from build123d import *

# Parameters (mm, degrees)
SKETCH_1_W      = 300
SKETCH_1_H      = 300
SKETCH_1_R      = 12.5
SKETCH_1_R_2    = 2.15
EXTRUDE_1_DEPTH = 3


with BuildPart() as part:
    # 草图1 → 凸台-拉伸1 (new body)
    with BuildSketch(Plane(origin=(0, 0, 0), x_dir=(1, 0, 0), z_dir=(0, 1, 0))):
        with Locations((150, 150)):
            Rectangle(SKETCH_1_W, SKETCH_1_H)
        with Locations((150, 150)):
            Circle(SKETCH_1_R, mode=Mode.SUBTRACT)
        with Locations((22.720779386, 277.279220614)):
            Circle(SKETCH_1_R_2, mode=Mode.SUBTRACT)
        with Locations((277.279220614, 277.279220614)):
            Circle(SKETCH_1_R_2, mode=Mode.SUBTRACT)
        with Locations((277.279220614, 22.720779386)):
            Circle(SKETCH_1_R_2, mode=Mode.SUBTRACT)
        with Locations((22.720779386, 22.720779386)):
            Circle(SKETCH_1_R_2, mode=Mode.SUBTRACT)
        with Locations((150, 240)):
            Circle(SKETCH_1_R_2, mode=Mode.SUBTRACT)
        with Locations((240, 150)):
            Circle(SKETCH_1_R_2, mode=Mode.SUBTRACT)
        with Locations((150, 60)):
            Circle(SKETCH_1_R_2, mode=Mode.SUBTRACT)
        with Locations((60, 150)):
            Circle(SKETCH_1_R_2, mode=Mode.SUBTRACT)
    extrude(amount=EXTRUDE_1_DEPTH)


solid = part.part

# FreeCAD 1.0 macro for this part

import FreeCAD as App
import Part
import Sketcher

V = App.Vector
Q = App.Units.Quantity


def add_polygon(sketch, points):
    """Adds a closed chain of lines whose ends are joined by coincident constraints."""
    first, n = sketch.GeometryCount, len(points)
    for a, b in zip(points, points[1:] + points[:1]):
        sketch.addGeometry(Part.LineSegment(App.Vector(*a, 0), App.Vector(*b, 0)), False)
    for i in range(n):
        sketch.addConstraint(Sketcher.Constraint("Coincident", first + i, 2, first + (i + 1) % n, 1))

doc = App.newDocument("Part")
body = doc.addObject("PartDesign::Body", "Body")

sketch1 = doc.addObject("Sketcher::SketchObject", "Sketch")
body.addObject(sketch1)
sketch1.AttachmentSupport = (doc.XZ_Plane, [""])
sketch1.MapMode = "FlatFace"
add_polygon(sketch1, [(0, -300), (0, 0), (300, 0), (300, -300)])
sketch1.addGeometry(Part.Circle(V(22.7, -22.7, 0), V(0, 0, 1), 2.1), False)
sketch1.addGeometry(Part.Circle(V(150, -60, 0), V(0, 0, 1), 2.1), False)
sketch1.addGeometry(Part.Circle(V(277.3, -22.7, 0), V(0, 0, 1), 2.1), False)
sketch1.addGeometry(Part.Circle(V(60, -150, 0), V(0, 0, 1), 2.1), False)
sketch1.addGeometry(Part.Circle(V(22.7, -277.3, 0), V(0, 0, 1), 2.1), False)
sketch1.addGeometry(Part.Circle(V(150, -150, 0), V(0, 0, 1), 12.5), False)
sketch1.addGeometry(Part.Circle(V(240, -150, 0), V(0, 0, 1), 2.1), False)
sketch1.addGeometry(Part.Circle(V(150, -240, 0), V(0, 0, 1), 2.1), False)
sketch1.addGeometry(Part.Circle(V(277.3, -277.3, 0), V(0, 0, 1), 2.1), False)
sketch1.addConstraint(Sketcher.Constraint("Vertical", 0))
sketch1.addConstraint(Sketcher.Constraint("Horizontal", 1))
sketch1.addConstraint(Sketcher.Constraint("Vertical", 2))
sketch1.addConstraint(Sketcher.Constraint("Horizontal", 3))
sketch1.addConstraint(Sketcher.Constraint("Coincident", 0, 2, -1, 1))
sketch1.addConstraint(Sketcher.Constraint("Equal", 4, 5))
sketch1.addConstraint(Sketcher.Constraint("Equal", 5, 6))
sketch1.addConstraint(Sketcher.Constraint("Equal", 6, 7))
sketch1.addConstraint(Sketcher.Constraint("Equal", 7, 8))
sketch1.addConstraint(Sketcher.Constraint("Equal", 8, 10))
sketch1.addConstraint(Sketcher.Constraint("Equal", 10, 11))
sketch1.addConstraint(Sketcher.Constraint("Equal", 11, 12))
sketch1.addConstraint(Sketcher.Constraint("Horizontal", 4, 3, 6, 3))
sketch1.addConstraint(Sketcher.Constraint("Horizontal", 7, 3, 9, 3))
sketch1.addConstraint(Sketcher.Constraint("Horizontal", 9, 3, 10, 3))
sketch1.addConstraint(Sketcher.Constraint("Horizontal", 8, 3, 12, 3))
sketch1.addConstraint(Sketcher.Constraint("Vertical", 4, 3, 8, 3))
sketch1.addConstraint(Sketcher.Constraint("Vertical", 5, 3, 9, 3))
sketch1.addConstraint(Sketcher.Constraint("Vertical", 9, 3, 11, 3))
sketch1.addConstraint(Sketcher.Constraint("Vertical", 6, 3, 12, 3))
sketch1.addConstraint(Sketcher.Constraint("Equal", 3, 0))
sketch1.addConstraint(Sketcher.Constraint("Diameter", 9, Q("25 mm")))
sketch1.addConstraint(Sketcher.Constraint("Diameter", 4, Q("4.3 mm")))
sketch1.addConstraint(Sketcher.Constraint("DistanceX", 1, 1, 1, 2, Q("300 mm")))
sketch1.addConstraint(Sketcher.Constraint("DistanceX", -1, 1, 5, 3, Q("150 mm")))
sketch1.addConstraint(Sketcher.Constraint("DistanceY", 5, 3, -1, 1, Q("60 mm")))
sketch1.addConstraint(Sketcher.Constraint("DistanceX", -1, 1, 7, 3, Q("60 mm")))
sketch1.addConstraint(Sketcher.Constraint("DistanceY", 7, 3, -1, 1, Q("150 mm")))
sketch1.addConstraint(Sketcher.Constraint("DistanceX", -1, 1, 10, 3, Q("240 mm")))
sketch1.addConstraint(Sketcher.Constraint("DistanceY", 11, 3, -1, 1, Q("240 mm")))
sketch1.addConstraint(Sketcher.Constraint("DistanceX", -1, 1, 4, 3, Q("22.720779 mm")))
sketch1.addConstraint(Sketcher.Constraint("DistanceY", 4, 3, -1, 1, Q("22.720779 mm")))
sketch1.addConstraint(Sketcher.Constraint("DistanceX", -1, 1, 6, 3, Q("277.279221 mm")))
sketch1.addConstraint(Sketcher.Constraint("DistanceY", 8, 3, -1, 1, Q("277.279221 mm")))
pad1 = doc.addObject("PartDesign::Pad", "Pad")
body.addObject(pad1)
pad1.Profile = sketch1
pad1.Length = 3
pad1.Reversed = True

doc.recompute()
